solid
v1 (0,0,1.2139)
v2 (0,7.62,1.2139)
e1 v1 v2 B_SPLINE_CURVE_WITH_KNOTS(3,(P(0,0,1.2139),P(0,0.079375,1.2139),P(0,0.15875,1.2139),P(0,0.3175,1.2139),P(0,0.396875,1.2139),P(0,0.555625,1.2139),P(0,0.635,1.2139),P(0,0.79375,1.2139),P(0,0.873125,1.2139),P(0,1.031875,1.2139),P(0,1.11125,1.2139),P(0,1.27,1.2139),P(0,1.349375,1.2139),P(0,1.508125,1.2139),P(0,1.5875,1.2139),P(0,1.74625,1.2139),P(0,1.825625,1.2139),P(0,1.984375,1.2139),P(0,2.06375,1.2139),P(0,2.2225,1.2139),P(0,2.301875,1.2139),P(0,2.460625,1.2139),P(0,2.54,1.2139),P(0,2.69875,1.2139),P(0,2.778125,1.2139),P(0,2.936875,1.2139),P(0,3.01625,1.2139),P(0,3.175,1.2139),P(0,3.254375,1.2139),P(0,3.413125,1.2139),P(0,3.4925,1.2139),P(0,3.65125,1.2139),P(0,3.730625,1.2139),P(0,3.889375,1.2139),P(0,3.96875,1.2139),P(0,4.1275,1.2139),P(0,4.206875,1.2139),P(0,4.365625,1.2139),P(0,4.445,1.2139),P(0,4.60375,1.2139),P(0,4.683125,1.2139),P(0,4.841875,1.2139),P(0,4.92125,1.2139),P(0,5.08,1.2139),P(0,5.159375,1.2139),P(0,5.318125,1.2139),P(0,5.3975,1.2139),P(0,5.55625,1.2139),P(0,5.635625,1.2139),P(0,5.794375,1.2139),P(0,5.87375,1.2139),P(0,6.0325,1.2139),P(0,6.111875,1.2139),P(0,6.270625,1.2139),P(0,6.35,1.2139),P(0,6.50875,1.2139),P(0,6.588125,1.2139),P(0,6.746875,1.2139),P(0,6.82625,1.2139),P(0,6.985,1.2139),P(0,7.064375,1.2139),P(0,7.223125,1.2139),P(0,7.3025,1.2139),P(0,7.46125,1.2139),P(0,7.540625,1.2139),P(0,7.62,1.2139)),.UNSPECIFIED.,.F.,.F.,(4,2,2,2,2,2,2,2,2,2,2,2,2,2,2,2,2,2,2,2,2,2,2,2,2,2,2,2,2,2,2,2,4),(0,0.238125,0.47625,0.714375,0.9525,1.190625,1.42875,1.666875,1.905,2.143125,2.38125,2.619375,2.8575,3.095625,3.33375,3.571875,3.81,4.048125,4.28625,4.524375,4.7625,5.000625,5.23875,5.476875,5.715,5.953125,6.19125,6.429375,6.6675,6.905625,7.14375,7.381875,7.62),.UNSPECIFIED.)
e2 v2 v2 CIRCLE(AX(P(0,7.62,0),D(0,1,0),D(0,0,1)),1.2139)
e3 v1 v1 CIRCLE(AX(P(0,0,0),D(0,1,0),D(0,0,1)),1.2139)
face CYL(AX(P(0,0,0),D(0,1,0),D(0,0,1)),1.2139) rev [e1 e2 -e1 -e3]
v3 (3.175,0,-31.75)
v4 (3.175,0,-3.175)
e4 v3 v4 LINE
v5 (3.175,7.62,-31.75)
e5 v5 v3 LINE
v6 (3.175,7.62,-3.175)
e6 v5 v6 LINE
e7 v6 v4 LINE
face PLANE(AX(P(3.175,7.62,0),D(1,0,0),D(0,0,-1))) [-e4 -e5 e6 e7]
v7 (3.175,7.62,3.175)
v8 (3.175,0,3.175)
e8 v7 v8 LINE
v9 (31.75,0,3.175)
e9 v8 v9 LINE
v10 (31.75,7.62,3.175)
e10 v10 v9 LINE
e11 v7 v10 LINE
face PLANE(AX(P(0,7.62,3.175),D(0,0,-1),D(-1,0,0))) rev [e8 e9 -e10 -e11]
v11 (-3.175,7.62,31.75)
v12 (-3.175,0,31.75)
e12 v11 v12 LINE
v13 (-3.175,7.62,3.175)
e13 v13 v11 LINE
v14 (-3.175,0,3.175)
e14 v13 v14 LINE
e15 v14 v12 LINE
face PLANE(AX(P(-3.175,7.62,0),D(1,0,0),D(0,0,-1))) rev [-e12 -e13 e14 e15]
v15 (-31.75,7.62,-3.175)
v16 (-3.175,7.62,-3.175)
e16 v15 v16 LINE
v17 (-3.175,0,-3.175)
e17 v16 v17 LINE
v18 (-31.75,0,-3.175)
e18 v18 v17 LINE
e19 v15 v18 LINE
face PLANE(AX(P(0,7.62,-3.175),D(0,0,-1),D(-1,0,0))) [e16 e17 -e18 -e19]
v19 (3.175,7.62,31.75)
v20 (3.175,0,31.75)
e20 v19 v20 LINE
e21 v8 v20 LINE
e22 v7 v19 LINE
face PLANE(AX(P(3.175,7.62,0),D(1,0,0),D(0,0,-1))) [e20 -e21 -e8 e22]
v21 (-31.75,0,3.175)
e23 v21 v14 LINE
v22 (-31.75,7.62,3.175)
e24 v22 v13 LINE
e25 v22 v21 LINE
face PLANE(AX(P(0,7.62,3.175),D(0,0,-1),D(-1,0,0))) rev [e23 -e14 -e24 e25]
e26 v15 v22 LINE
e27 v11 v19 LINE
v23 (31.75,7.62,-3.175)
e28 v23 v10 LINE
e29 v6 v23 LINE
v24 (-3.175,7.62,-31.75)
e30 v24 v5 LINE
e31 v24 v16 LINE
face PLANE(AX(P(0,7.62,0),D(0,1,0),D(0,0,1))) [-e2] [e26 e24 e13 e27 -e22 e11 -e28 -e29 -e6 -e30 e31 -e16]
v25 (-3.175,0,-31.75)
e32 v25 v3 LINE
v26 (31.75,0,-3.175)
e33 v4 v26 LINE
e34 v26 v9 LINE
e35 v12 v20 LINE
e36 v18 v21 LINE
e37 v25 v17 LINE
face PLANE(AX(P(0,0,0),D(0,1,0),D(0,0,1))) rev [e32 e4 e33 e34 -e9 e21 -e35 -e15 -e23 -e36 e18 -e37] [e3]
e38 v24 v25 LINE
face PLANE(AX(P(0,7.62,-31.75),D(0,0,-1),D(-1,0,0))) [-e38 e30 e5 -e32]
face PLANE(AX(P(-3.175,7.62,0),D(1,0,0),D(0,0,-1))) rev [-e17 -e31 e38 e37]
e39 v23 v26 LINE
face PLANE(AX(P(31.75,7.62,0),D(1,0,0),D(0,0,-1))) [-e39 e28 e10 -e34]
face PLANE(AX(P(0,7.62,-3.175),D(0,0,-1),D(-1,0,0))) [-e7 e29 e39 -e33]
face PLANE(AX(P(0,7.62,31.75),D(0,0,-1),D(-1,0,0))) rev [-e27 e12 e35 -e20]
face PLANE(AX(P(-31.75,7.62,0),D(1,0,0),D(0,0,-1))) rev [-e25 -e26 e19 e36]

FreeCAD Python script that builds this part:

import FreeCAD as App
import Part
import Sketcher
from FreeCAD import Vector
Q = App.Units.Quantity


def add_polygon(sketch, points):
    """Adds a closed chain of lines whose ends are joined by coincident constraints."""
    first, n = sketch.GeometryCount, len(points)
    for a, b in zip(points, points[1:] + points[:1]):
        sketch.addGeometry(Part.LineSegment(App.Vector(*a, 0), App.Vector(*b, 0)), False)
    for i in range(n):
        sketch.addConstraint(Sketcher.Constraint("Coincident", first + i, 2, first + (i + 1) % n, 1))

doc = App.newDocument("Part")
body = doc.addObject("PartDesign::Body", "Body")

# Sketch on XZ plane
sketch1 = body.newObject("Sketcher::SketchObject", "Sketch")
sketch1.AttachmentSupport = (doc.getObject("XZ_Plane"), [""])
sketch1.MapMode = "FlatFace"
add_polygon(sketch1, [(-3.175, -31.75), (-3.175, -3.175), (-31.75, -3.175), (-31.75, 3.175), (-3.175, 3.175), (-3.175, 31.75), (3.175, 31.75), (3.175, 3.175), (31.75, 3.175), (31.75, -3.175), (3.175, -3.175), (3.175, -31.75)])  # lines 0-11
sketch1.addConstraint([
    Sketcher.Constraint("Vertical", 0),
    Sketcher.Constraint("Horizontal", 1),
    Sketcher.Constraint("Vertical", 2),
    Sketcher.Constraint("Horizontal", 3),
    Sketcher.Constraint("Vertical", 4),
    Sketcher.Constraint("Horizontal", 5),
    Sketcher.Constraint("Vertical", 6),
    Sketcher.Constraint("Horizontal", 7),
    Sketcher.Constraint("Vertical", 8),
    Sketcher.Constraint("Horizontal", 9),
    Sketcher.Constraint("Vertical", 10),
    Sketcher.Constraint("Horizontal", 11),
    Sketcher.Constraint("Symmetric", 0, 2, 6, 2, -1, 1),
    Sketcher.Constraint("Symmetric", 2, 2, 8, 2, -1, 1),
    Sketcher.Constraint("Symmetric", 4, 2, 10, 2, -1, 1),
    Sketcher.Constraint("Symmetric", 3, 2, 6, 2, -2),
    Sketcher.Constraint("Equal", 9, 0),
    Sketcher.Constraint("Equal", 11, 2),
    Sketcher.Constraint("DistanceX", 5, 1, 5, 2, Q("0.25 in")),
    Sketcher.Constraint("DistanceX", 1, 2, 1, 1, Q("1.125 in")),
])
pad1 = body.newObject("PartDesign::Pad", "Pad")
pad1.Profile = sketch1
pad1.Length = Q("0.3 in")
pad1.Reversed = True

# Sketch on XZ plane
sketch2 = body.newObject("Sketcher::SketchObject", "Sketch001")
sketch2.AttachmentSupport = (doc.getObject("XZ_Plane"), [""])
sketch2.MapMode = "FlatFace"
sketch2.AttachmentOffset = App.Placement(Vector(0, 0, -0.3 * 25.4), App.Rotation())
sketch2.addGeometry(Part.Circle(Vector(0, 0, 0), Vector(0, 0, 1), 1.2139), False)
sketch2.addConstraint([
    Sketcher.Constraint("Coincident", 0, 3, -1, 1),
    Sketcher.Constraint("Diameter", 0, Q("2.4278 mm")),
])
pocket1 = body.newObject("PartDesign::Pocket", "Pocket")
pocket1.Profile = sketch2
pocket1.Type = "ThroughAll"
pocket1.Reversed = True

doc.recompute()
